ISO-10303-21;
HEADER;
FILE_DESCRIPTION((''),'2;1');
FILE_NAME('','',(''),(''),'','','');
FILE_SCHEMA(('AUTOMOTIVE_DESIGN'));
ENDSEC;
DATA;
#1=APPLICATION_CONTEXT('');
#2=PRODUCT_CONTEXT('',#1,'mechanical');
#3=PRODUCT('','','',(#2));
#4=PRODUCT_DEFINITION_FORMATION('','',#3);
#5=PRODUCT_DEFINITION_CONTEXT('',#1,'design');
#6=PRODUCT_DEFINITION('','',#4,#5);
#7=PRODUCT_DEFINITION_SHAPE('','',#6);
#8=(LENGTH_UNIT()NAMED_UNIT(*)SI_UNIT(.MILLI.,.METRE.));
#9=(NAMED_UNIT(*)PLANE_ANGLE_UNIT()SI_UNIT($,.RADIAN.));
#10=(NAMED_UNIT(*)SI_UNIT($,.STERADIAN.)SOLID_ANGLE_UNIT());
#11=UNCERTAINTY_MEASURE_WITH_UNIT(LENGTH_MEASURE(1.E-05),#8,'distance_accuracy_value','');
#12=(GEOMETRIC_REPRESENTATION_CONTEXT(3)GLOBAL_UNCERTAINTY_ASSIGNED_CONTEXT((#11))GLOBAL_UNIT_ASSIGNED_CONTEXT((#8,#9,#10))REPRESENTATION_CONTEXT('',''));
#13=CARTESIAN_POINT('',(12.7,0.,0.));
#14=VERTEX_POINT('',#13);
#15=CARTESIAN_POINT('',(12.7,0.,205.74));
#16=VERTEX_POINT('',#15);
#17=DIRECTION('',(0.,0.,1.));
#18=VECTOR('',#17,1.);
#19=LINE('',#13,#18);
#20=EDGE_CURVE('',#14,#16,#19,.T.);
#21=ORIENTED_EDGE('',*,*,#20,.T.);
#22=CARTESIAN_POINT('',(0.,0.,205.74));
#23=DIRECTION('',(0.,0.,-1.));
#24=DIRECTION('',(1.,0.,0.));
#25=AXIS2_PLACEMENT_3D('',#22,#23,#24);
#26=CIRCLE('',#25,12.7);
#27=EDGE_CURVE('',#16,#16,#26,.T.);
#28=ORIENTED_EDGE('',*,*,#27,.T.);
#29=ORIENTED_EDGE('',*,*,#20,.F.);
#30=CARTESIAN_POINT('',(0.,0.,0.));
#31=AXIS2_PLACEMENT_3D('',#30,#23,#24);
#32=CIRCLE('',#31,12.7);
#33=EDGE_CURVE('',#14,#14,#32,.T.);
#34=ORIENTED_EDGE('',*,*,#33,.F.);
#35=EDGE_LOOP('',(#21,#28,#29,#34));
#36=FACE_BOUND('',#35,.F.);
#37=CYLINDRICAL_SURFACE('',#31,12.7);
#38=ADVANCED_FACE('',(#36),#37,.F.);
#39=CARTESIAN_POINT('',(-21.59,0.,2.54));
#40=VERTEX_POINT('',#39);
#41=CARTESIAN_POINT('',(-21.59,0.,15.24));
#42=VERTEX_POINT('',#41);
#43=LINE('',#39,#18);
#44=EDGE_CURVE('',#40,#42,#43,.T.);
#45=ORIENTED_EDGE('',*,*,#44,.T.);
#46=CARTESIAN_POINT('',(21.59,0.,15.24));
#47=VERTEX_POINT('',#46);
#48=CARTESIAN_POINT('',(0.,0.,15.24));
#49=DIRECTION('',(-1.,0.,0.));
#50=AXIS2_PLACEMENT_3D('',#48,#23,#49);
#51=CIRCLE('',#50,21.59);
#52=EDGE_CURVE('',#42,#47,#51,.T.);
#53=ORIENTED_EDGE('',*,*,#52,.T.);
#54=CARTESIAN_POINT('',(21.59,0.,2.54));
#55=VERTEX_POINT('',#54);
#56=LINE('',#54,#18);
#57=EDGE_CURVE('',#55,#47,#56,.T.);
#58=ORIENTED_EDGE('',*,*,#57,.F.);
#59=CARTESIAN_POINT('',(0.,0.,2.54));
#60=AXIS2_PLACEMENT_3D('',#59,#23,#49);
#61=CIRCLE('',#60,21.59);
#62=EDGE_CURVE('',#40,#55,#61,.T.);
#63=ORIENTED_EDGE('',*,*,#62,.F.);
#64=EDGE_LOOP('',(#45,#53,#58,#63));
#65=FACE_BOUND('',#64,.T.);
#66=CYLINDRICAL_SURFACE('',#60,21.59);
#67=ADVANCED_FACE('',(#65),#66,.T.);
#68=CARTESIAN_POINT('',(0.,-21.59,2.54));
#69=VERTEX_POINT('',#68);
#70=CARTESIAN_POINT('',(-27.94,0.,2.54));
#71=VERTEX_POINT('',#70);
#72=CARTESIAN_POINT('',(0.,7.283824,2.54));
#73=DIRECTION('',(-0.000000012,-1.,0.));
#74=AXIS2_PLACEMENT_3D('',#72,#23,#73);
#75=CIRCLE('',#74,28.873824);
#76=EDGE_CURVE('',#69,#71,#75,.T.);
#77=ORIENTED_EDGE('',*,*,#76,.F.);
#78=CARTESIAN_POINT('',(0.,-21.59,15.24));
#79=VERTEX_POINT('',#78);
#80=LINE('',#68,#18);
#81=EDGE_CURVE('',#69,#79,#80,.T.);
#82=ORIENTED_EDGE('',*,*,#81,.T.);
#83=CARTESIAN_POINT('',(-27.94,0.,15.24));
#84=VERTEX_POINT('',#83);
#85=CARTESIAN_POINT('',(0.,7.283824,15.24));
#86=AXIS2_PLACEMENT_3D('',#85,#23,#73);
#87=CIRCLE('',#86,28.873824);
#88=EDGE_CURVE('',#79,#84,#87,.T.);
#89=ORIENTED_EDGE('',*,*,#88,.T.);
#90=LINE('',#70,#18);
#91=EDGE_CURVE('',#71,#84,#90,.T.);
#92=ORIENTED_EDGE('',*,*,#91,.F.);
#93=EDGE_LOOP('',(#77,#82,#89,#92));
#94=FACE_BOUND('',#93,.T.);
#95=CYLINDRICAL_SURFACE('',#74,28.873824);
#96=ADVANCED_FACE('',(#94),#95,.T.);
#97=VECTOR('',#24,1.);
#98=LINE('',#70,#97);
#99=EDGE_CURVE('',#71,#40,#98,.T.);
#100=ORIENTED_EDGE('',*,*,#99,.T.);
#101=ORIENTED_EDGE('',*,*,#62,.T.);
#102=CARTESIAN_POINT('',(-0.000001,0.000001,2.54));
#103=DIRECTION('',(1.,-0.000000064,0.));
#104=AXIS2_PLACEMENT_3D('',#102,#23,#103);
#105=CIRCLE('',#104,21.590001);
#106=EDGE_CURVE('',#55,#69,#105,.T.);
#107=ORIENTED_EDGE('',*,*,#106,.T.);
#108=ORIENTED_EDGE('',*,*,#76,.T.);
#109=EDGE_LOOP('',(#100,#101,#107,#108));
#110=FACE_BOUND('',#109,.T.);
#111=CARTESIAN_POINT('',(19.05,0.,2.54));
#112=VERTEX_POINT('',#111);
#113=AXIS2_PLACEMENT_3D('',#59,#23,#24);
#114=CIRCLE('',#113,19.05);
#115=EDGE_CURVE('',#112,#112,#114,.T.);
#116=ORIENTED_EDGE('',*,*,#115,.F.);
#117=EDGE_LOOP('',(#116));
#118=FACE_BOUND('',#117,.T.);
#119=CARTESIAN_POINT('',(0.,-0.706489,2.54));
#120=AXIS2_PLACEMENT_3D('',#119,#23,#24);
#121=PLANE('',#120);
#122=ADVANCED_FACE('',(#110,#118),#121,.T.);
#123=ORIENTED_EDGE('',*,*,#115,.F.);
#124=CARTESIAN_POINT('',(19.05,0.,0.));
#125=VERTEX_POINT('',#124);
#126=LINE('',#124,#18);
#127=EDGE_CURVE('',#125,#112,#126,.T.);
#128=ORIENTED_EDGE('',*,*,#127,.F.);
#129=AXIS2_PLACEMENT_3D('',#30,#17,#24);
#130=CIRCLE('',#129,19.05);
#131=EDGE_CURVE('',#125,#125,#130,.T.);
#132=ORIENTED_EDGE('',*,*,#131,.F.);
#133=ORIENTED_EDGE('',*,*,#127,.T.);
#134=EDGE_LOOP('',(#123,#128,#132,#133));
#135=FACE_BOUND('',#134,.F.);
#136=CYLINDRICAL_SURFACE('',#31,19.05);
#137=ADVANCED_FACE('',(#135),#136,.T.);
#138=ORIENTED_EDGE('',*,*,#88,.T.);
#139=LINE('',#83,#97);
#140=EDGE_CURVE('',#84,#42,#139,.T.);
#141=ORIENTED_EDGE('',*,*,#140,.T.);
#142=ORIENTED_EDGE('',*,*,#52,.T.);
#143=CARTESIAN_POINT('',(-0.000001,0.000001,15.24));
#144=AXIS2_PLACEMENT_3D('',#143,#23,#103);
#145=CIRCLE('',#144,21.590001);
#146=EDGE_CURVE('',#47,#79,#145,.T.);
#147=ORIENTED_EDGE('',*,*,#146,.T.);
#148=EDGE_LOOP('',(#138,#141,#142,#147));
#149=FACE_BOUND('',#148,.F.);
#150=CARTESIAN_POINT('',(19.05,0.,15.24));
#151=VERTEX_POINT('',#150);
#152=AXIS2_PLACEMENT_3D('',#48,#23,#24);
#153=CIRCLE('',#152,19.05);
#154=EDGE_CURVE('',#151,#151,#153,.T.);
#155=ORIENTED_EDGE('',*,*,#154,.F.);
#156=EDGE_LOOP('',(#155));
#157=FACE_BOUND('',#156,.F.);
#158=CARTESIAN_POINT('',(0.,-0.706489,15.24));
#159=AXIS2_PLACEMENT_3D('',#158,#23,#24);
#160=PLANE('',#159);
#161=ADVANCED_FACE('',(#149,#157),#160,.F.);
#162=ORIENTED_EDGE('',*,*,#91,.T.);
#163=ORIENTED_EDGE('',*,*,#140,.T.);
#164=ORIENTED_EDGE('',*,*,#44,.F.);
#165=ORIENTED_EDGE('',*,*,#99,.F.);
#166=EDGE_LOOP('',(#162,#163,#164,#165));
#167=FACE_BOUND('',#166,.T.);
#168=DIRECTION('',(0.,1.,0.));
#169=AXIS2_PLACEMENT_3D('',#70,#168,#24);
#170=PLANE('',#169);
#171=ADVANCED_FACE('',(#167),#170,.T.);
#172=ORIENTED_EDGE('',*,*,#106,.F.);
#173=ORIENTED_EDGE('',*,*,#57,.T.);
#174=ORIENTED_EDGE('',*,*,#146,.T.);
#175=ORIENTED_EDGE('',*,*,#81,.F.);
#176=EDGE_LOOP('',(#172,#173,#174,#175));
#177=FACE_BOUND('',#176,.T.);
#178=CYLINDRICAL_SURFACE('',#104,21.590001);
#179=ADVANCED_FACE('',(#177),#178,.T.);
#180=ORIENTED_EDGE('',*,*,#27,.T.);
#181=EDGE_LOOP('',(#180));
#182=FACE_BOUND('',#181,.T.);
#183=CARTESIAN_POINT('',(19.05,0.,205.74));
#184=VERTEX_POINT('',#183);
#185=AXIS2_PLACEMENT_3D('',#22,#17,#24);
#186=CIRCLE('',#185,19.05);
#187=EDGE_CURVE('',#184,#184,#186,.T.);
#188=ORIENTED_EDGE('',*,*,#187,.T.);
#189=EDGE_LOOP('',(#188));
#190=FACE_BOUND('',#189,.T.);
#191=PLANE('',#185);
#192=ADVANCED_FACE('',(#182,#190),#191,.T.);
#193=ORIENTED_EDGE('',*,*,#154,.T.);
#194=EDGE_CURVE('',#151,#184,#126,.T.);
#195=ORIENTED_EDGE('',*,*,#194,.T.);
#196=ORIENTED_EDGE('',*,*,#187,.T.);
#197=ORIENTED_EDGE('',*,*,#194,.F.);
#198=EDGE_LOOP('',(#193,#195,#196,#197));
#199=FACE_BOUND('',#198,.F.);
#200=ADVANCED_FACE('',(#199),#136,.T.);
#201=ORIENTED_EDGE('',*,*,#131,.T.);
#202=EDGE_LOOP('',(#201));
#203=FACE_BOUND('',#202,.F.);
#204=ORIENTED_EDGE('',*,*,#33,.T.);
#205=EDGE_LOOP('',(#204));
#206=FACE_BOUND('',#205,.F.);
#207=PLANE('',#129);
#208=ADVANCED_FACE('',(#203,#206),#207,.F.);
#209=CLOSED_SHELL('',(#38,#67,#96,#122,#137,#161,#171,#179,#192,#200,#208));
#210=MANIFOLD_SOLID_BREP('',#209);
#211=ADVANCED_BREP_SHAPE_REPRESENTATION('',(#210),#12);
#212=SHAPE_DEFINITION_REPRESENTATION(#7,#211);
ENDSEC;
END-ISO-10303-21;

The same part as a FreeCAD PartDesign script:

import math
import FreeCAD as App
import Part
import Sketcher
from FreeCAD import Vector
Q = App.Units.Quantity

doc = App.newDocument("Part")
body = doc.addObject("PartDesign::Body", "Body")

# Sketch on XY plane
sketch1 = doc.addObject("Sketcher::SketchObject", "Sketch")
body.addObject(sketch1)
sketch1.AttachmentSupport = (doc.XY_Plane, [""])
sketch1.MapMode = "FlatFace"
sketch1.addGeometry(Part.Circle(Vector(0, 0, 0), Vector(0, 0, 1), 19), False)
sketch1.addConstraint([
    Sketcher.Constraint("Coincident", 0, 3, -1, 1),
    Sketcher.Constraint("Diameter", 0, Q("1.5 in")),
])
pad1 = doc.addObject("PartDesign::Pad", "Pad")
body.addObject(pad1)
pad1.Profile = sketch1
pad1.Length = Q("8.1 in")

# Sketch on XY plane
sketch2 = doc.addObject("Sketcher::SketchObject", "Sketch001")
body.addObject(sketch2)
sketch2.AttachmentSupport = (doc.XY_Plane, [""])
sketch2.MapMode = "FlatFace"
sketch2.AttachmentOffset = App.Placement(Vector(0, 0, 0.1 * 25.4), App.Rotation())
sketch2.addGeometry([
    Part.ArcOfCircle(Part.Circle(Vector(0, 0, 0), Vector(0, 0, 1), 22), math.radians(0), math.radians(180)),  # 0
    Part.ArcOfCircle(Part.Circle(Vector(0, 0, 0), Vector(0, 0, 1), 22), math.radians(-90), math.radians(0)),  # 1
    Part.ArcOfCircle(Part.Circle(Vector(0, 7, 0), Vector(0, 0, 1), 29), math.radians(-165), math.radians(-90)),  # 2
    Part.LineSegment(Vector(-28, 0, 0), Vector(-22, 0, 0)),  # 3
    Part.Circle(Vector(0, 0, 0), Vector(0, 0, 1), 19),  # 4
], False)
sketch2.addConstraint([
    Sketcher.Constraint("Tangent", 0, 1, 1, 2),
    Sketcher.Constraint("Tangent", 1, 1, 2, 2),
    Sketcher.Constraint("Coincident", 2, 1, 3, 1),
    Sketcher.Constraint("Coincident", 3, 2, 0, 2),
    Sketcher.Constraint("Horizontal", 3),
    Sketcher.Constraint("Coincident", 0, 3, -1, 1),
    Sketcher.Constraint("Coincident", 4, 3, -1, 1),
    Sketcher.Constraint("Equal", 0, 1),
    Sketcher.Constraint("PointOnObject", 2, 3, -2),
    Sketcher.Constraint("PointOnObject", 0, 1, -1),
    Sketcher.Constraint("PointOnObject", 2, 1, -1),
    Sketcher.Constraint("Diameter", 4, Q("1.5 in")),
    Sketcher.Constraint("Radius", 0, Q("0.85 in")),
    Sketcher.Constraint("DistanceX", 3, 1, 3, 2, Q("0.25 in")),
])
pad2 = doc.addObject("PartDesign::Pad", "Pad001")
body.addObject(pad2)
pad2.Profile = sketch2
pad2.Length = Q("0.5 in")

# Sketch on XY plane
sketch3 = doc.addObject("Sketcher::SketchObject", "Sketch002")
body.addObject(sketch3)
sketch3.AttachmentSupport = (doc.XY_Plane, [""])
sketch3.MapMode = "FlatFace"
sketch3.addGeometry(Part.Circle(Vector(0, 0, 0), Vector(0, 0, 1), 13), False)
sketch3.addConstraint([
    Sketcher.Constraint("Coincident", 0, 3, -1, 1),
    Sketcher.Constraint("Diameter", 0, Q("1 in")),
])
pocket1 = doc.addObject("PartDesign::Pocket", "Pocket")
body.addObject(pocket1)
pocket1.Profile = sketch3
pocket1.Length = Q("10 in")
pocket1.Reversed = True

doc.recompute()
